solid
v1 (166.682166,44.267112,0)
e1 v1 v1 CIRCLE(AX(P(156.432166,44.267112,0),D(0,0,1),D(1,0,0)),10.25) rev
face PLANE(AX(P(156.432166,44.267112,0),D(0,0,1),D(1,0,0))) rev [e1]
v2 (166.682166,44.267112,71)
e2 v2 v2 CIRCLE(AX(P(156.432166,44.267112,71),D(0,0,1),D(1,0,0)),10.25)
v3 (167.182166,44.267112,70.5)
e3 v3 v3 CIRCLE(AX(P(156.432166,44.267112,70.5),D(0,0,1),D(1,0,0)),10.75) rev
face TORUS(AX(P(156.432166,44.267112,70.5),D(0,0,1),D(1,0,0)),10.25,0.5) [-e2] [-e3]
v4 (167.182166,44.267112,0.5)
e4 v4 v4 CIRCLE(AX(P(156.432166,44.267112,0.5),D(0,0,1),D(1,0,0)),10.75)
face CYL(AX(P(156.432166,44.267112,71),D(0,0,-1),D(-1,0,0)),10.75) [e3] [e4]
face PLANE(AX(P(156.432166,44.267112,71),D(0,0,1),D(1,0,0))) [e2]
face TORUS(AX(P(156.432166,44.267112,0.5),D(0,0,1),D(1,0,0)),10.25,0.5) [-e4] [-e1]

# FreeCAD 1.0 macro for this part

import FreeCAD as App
import Part
import Sketcher
Q = App.Units.Quantity


def edges_at(feature, points):
    """Names of the edges that pass closest to the given points."""
    edges = feature.Shape.Edges
    near = lambda p: min(range(len(edges)), key=lambda i: edges[i].distToShape(Part.Vertex(*p))[0])
    return sorted({f"Edge{near(p) + 1}" for p in points})

doc = App.newDocument("Part")
body = doc.addObject("PartDesign::Body", "Body")

sketch1 = body.newObject("Sketcher::SketchObject", "Sketch")
sketch1.AttachmentSupport = (doc.getObject("XY_Plane"), [""])
sketch1.MapMode = "FlatFace"
sketch1.addGeometry(Part.Circle(App.Vector(156.432166, 44.267112, 0), App.Vector(0, 0, 1), 10.75), False)
sketch1.addConstraint([
    Sketcher.Constraint("Diameter", 0, Q("21.5 mm")),
    Sketcher.Constraint("DistanceY", -1, 1, 0, 3, Q("44.267112 mm")),
    Sketcher.Constraint("DistanceX", -1, 1, 0, 3, Q("156.432166 mm")),
])
pad1 = body.newObject("PartDesign::Pad", "Pad")
pad1.Profile = sketch1
pad1.Length = 71
doc.recompute()

fillet = body.newObject("PartDesign::Fillet", "Fillet")
fillet.Base = (pad1, edges_at(pad1, [(145.682, 44.267, 0), (145.682, 44.267, 71)]))
fillet.Radius = 0.5

doc.recompute()
